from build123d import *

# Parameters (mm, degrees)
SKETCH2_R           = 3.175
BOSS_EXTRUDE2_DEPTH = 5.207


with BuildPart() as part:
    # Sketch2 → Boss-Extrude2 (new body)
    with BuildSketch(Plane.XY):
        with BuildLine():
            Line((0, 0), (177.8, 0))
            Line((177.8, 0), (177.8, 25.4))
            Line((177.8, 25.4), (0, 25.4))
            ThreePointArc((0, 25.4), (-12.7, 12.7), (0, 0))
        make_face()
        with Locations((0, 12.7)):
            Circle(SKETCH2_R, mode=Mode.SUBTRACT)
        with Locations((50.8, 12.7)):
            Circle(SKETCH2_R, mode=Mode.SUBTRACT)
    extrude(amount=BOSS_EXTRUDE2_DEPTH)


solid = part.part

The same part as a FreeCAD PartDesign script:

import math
import FreeCAD as App
import Part
import Sketcher
Q = App.Units.Quantity

doc = App.newDocument("Part")
body = doc.addObject("PartDesign::Body", "Body")

sketch1 = body.newObject("Sketcher::SketchObject", "Sketch")
sketch1.AttachmentSupport = (doc.getObject("XY_Plane"), [""])
sketch1.MapMode = "FlatFace"
sketch1.addGeometry([
    Part.LineSegment(App.Vector(0, 0, 0), App.Vector(177.8, 0, 0)),
    Part.LineSegment(App.Vector(177.8, 0, 0), App.Vector(177.8, 25.4, 0)),
    Part.LineSegment(App.Vector(177.8, 25.4, 0), App.Vector(0, 25.4, 0)),
    Part.ArcOfCircle(Part.Circle(App.Vector(0, 12.7, 0), App.Vector(0, 0, 1), 12.7), math.radians(90), math.radians(270)),
    Part.Circle(App.Vector(0, 12.7, 0), App.Vector(0, 0, 1), 3.2),
    Part.Circle(App.Vector(50.8, 12.7, 0), App.Vector(0, 0, 1), 3.2),
], False)
sketch1.addConstraint([
    Sketcher.Constraint("Coincident", 0, 2, 1, 1),
    Sketcher.Constraint("Coincident", 1, 2, 2, 1),
    Sketcher.Constraint("Tangent", 2, 2, 3, 1),
    Sketcher.Constraint("Tangent", 3, 2, 0, 1),
    Sketcher.Constraint("Horizontal", 0),
    Sketcher.Constraint("Vertical", 1),
    Sketcher.Constraint("Horizontal", 2),
    Sketcher.Constraint("Coincident", 3, 2, -1, 1),
    Sketcher.Constraint("Coincident", 4, 3, 3, 3),
    Sketcher.Constraint("Equal", 4, 5),
    Sketcher.Constraint("Horizontal", 4, 3, 5, 3),
    Sketcher.Constraint("Radius", 3, Q("0.5 in")),
    Sketcher.Constraint("Diameter", 4, Q("0.25 in")),
    Sketcher.Constraint("DistanceX", 0, 1, 0, 2, Q("7 in")),
    Sketcher.Constraint("DistanceX", -1, 1, 5, 3, Q("2 in")),
])
pad1 = body.newObject("PartDesign::Pad", "Pad")
pad1.Profile = sketch1
pad1.Length = Q("0.205 in")

doc.recompute()
